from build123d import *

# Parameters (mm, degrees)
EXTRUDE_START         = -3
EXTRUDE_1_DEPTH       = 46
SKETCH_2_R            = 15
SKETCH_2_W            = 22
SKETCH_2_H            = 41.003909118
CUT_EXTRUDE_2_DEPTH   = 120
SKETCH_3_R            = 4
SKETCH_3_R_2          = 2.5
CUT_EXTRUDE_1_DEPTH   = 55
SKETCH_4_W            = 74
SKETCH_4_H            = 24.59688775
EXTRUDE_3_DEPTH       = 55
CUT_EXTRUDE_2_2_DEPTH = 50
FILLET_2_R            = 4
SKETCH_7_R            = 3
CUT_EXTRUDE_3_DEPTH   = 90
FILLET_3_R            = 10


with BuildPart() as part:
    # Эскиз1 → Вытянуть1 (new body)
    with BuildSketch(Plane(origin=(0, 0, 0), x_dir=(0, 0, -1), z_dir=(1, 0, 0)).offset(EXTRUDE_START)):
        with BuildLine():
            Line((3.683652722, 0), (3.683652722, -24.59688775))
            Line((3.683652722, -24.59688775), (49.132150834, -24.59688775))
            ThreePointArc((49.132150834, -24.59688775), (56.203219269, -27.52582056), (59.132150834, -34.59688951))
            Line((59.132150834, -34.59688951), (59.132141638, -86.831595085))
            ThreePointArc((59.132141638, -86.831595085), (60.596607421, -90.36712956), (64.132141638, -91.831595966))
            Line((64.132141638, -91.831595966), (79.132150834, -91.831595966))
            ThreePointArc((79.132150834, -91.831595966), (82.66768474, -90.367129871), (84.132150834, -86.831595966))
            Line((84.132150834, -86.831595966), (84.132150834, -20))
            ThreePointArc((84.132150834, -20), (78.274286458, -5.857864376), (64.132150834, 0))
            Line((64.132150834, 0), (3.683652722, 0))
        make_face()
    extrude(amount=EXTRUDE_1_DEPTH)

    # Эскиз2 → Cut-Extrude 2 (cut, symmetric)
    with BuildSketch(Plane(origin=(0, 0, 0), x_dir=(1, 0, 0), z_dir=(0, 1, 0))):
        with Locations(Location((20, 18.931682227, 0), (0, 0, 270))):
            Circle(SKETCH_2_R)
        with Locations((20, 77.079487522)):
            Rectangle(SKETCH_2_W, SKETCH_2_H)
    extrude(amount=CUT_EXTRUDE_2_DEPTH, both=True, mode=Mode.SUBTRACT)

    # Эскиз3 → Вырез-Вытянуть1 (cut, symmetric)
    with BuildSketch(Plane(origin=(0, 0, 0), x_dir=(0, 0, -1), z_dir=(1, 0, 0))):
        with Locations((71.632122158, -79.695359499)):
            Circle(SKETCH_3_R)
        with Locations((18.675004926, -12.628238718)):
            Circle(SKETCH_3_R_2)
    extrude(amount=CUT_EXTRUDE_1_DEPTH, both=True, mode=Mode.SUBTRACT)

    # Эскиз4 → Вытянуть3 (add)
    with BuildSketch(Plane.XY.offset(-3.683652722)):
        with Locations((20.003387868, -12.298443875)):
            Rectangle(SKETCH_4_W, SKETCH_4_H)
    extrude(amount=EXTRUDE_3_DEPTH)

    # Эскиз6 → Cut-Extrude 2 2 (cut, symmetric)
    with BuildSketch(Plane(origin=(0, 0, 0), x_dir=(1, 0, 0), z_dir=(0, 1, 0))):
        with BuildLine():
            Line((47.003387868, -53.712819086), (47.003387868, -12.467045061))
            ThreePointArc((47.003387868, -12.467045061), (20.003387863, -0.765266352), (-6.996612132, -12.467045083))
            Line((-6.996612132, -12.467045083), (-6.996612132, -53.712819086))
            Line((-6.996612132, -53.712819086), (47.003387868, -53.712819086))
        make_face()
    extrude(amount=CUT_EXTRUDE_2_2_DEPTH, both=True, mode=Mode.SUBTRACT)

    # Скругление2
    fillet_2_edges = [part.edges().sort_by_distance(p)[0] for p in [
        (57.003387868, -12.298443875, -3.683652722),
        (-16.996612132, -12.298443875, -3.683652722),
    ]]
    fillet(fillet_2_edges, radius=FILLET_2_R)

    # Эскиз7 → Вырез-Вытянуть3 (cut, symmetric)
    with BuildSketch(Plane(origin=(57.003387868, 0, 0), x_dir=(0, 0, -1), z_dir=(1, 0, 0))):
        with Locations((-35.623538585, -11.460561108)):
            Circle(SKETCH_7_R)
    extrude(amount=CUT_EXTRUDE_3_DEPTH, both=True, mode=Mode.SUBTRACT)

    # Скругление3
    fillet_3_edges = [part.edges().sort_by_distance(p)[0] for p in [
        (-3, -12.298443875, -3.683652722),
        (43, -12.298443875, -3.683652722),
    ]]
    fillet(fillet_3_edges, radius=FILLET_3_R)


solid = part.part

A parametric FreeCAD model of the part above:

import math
import FreeCAD as App
import Part
import Sketcher

V = App.Vector


def edges_at(feature, points):
    """Names of the edges that pass closest to the given points."""
    edges = feature.Shape.Edges
    near = lambda p: min(range(len(edges)), key=lambda i: edges[i].distToShape(Part.Vertex(*p))[0])
    return sorted({f"Edge{near(p) + 1}" for p in points})


def add_polygon(sketch, points):
    """Adds a closed chain of lines whose ends are joined by coincident constraints."""
    first, n = sketch.GeometryCount, len(points)
    for a, b in zip(points, points[1:] + points[:1]):
        sketch.addGeometry(Part.LineSegment(App.Vector(*a, 0), App.Vector(*b, 0)), False)
    for i in range(n):
        sketch.addConstraint(Sketcher.Constraint("Coincident", first + i, 2, first + (i + 1) % n, 1))

doc = App.newDocument("Part")
body = doc.addObject("PartDesign::Body", "Body")

# Sketch on YZ plane
sketch1 = body.newObject("Sketcher::SketchObject", "Sketch")
sketch1.AttachmentSupport = (doc.getObject("YZ_Plane"), [""])
sketch1.MapMode = "FlatFace"
sketch1.AttachmentOffset = App.Placement(V(0, 0, -3), App.Rotation())
sketch1.addGeometry(Part.LineSegment(V(0, -3.683653, 0), V(-24.596888, -3.683653, 0)), False)
sketch1.addGeometry(Part.LineSegment(V(-24.596888, -3.683653, 0), V(-24.596888, -49.132151, 0)), False)
sketch1.addGeometry(Part.ArcOfCircle(Part.Circle(V(-34.596888, -49.132151, 0), V(0, 0, 1), 10), math.radians(-90.00001), math.radians(0)), False)
sketch1.addGeometry(Part.LineSegment(V(-34.59689, -59.132151, 0), V(-86.831595, -59.132142, 0)), False)
sketch1.addGeometry(Part.ArcOfCircle(Part.Circle(V(-86.831596, -64.132142, 0), V(0, 0, 1), 5), math.radians(89.99999), math.radians(180)), False)
sketch1.addGeometry(Part.LineSegment(V(-91.831596, -64.132142, 0), V(-91.831596, -79.132151, 0)), False)
sketch1.addGeometry(Part.ArcOfCircle(Part.Circle(V(-86.831596, -79.132151, 0), V(0, 0, 1), 5), math.radians(-180), math.radians(-90)), False)
sketch1.addGeometry(Part.LineSegment(V(-86.831596, -84.132151, 0), V(-20, -84.132151, 0)), False)
sketch1.addGeometry(Part.ArcOfCircle(Part.Circle(V(-20, -64.132151, 0), V(0, 0, 1), 20), math.radians(-90), math.radians(0)), False)
sketch1.addGeometry(Part.LineSegment(V(0, -64.132151, 0), V(0, -3.683653, 0)), False)
sketch1.addConstraint(Sketcher.Constraint("Coincident", 0, 2, 1, 1))
sketch1.addConstraint(Sketcher.Constraint("Tangent", 1, 2, 2, 2))
sketch1.addConstraint(Sketcher.Constraint("Tangent", 2, 1, 3, 1))
sketch1.addConstraint(Sketcher.Constraint("Tangent", 3, 2, 4, 1))
sketch1.addConstraint(Sketcher.Constraint("Tangent", 4, 2, 5, 1))
sketch1.addConstraint(Sketcher.Constraint("Tangent", 5, 2, 6, 1))
sketch1.addConstraint(Sketcher.Constraint("Tangent", 6, 2, 7, 1))
sketch1.addConstraint(Sketcher.Constraint("Tangent", 7, 2, 8, 1))
sketch1.addConstraint(Sketcher.Constraint("Tangent", 8, 2, 9, 1))
sketch1.addConstraint(Sketcher.Constraint("Coincident", 9, 2, 0, 1))
sketch1.addConstraint(Sketcher.Constraint("Horizontal", 0))
sketch1.addConstraint(Sketcher.Constraint("Vertical", 1))
sketch1.addConstraint(Sketcher.Constraint("Vertical", 5))
sketch1.addConstraint(Sketcher.Constraint("Horizontal", 7))
sketch1.addConstraint(Sketcher.Constraint("Vertical", 9))
sketch1.addConstraint(Sketcher.Constraint("Equal", 4, 6))
sketch1.addConstraint(Sketcher.Constraint("PointOnObject", 8, 2, -2))
sketch1.addConstraint(Sketcher.Constraint("Vertical", 6, 3, 3, 2))
sketch1.addConstraint(Sketcher.Constraint("Radius", 2, 10.0))
sketch1.addConstraint(Sketcher.Constraint("Radius", 4, 5.0))
sketch1.addConstraint(Sketcher.Constraint("Radius", 8, 20.0))
sketch1.addConstraint(Sketcher.Constraint("DistanceY", 6, 3, 2, 3, 30.0))
sketch1.addConstraint(Sketcher.Constraint("DistanceY", 1, 2, 1, 1, 45.448498))
sketch1.addConstraint(Sketcher.Constraint("DistanceX", 0, 2, 0, 1, 24.596888))
sketch1.addConstraint(Sketcher.Constraint("DistanceX", 7, 1, 7, 2, 66.831596))
sketch1.addConstraint(Sketcher.Constraint("DistanceY", 2, 3, -1, 1, 49.132151))
pad1 = body.newObject("PartDesign::Pad", "Pad")
pad1.Profile = sketch1
pad1.Length = 46

# Sketch on XZ plane
sketch2 = body.newObject("Sketcher::SketchObject", "Sketch001")
sketch2.AttachmentSupport = (doc.getObject("XZ_Plane"), [""])
sketch2.MapMode = "FlatFace"
sketch2.addGeometry(Part.Circle(V(20, -18.931682, 0), V(0, 0, 1), 15), False)  # 0
add_polygon(sketch2, [(9, -97.581442), (9, -56.577533), (31, -56.577533), (31, -97.581442)])  # lines 1-4
sketch2.addConstraint(Sketcher.Constraint("Vertical", 1))
sketch2.addConstraint(Sketcher.Constraint("Horizontal", 2))
sketch2.addConstraint(Sketcher.Constraint("Vertical", 3))
sketch2.addConstraint(Sketcher.Constraint("Horizontal", 4))
sketch2.addConstraint(Sketcher.Constraint("Diameter", 0, 30.0))
sketch2.addConstraint(Sketcher.Constraint("DistanceX", 2, 1, 2, 2, 22.0))
sketch2.addConstraint(Sketcher.Constraint("DistanceX", -1, 1, 0, 3, 20.0))
sketch2.addConstraint(Sketcher.Constraint("DistanceX", -1, 1, 1, 2, 9.0))
sketch2.addConstraint(Sketcher.Constraint("DistanceY", 1, 1, 1, 2, 41.003909))
sketch2.addConstraint(Sketcher.Constraint("DistanceY", 1, 2, 0, 3, 37.645851))
sketch2.addConstraint(Sketcher.Constraint("DistanceY", 0, 3, -1, 1, 18.931682))
pocket1 = body.newObject("PartDesign::Pocket", "Pocket")
pocket1.Profile = sketch2
pocket1.Length = 240
pocket1.Midplane = True

# Sketch on YZ plane
sketch3 = body.newObject("Sketcher::SketchObject", "Sketch002")
sketch3.AttachmentSupport = (doc.getObject("YZ_Plane"), [""])
sketch3.MapMode = "FlatFace"
sketch3.addGeometry(Part.Circle(V(-79.695359, -71.632122, 0), V(0, 0, 1), 4), False)
sketch3.addGeometry(Part.Circle(V(-12.628239, -18.675005, 0), V(0, 0, 1), 2.5), False)
sketch3.addConstraint(Sketcher.Constraint("Diameter", 0, 8.0))
sketch3.addConstraint(Sketcher.Constraint("Diameter", 1, 5.0))
sketch3.addConstraint(Sketcher.Constraint("DistanceX", 0, 3, -1, 1, 79.695359))
sketch3.addConstraint(Sketcher.Constraint("DistanceX", 1, 3, -1, 1, 12.628239))
sketch3.addConstraint(Sketcher.Constraint("DistanceY", 0, 3, -1, 1, 71.632122))
sketch3.addConstraint(Sketcher.Constraint("DistanceY", 1, 3, -1, 1, 18.675005))
pocket2 = body.newObject("PartDesign::Pocket", "Pocket001")
pocket2.Profile = sketch3
pocket2.Length = 110
pocket2.Midplane = True

# Sketch on XY plane
sketch4 = body.newObject("Sketcher::SketchObject", "Sketch003")
sketch4.AttachmentSupport = (doc.getObject("XY_Plane"), [""])
sketch4.MapMode = "FlatFace"
sketch4.AttachmentOffset = App.Placement(V(0, 0, -3.683653), App.Rotation())
add_polygon(sketch4, [(-16.996612, 0), (-16.996612, -24.596888), (57.003388, -24.596888), (57.003388, 0)])  # lines 0-3
sketch4.addConstraint(Sketcher.Constraint("Vertical", 0))
sketch4.addConstraint(Sketcher.Constraint("Horizontal", 1))
sketch4.addConstraint(Sketcher.Constraint("Vertical", 2))
sketch4.addConstraint(Sketcher.Constraint("Horizontal", 3))
sketch4.addConstraint(Sketcher.Constraint("PointOnObject", 2, 2, -1))
sketch4.addConstraint(Sketcher.Constraint("DistanceX", 1, 1, 1, 2, 74.0))
sketch4.addConstraint(Sketcher.Constraint("DistanceY", 0, 2, 0, 1, 24.596888))
sketch4.addConstraint(Sketcher.Constraint("DistanceX", 0, 2, -1, 1, 16.996612))
pad2 = body.newObject("PartDesign::Pad", "Pad001")
pad2.Profile = sketch4
pad2.Length = 55

# Sketch on XZ plane
sketch5 = body.newObject("Sketcher::SketchObject", "Sketch004")
sketch5.AttachmentSupport = (doc.getObject("XZ_Plane"), [""])
sketch5.MapMode = "FlatFace"
sketch5.addGeometry(Part.LineSegment(V(47.003388, 53.712819, 0), V(47.003388, 12.467045, 0)), False)
sketch5.addGeometry(Part.ArcOfCircle(Part.Circle(V(20.003388, 37.765266, 0), V(0, 0, 1), 37), math.radians(-136.863741), math.radians(-43.136259)), False)
sketch5.addGeometry(Part.LineSegment(V(-6.996612, 12.467045, 0), V(-6.996612, 53.712819, 0)), False)
sketch5.addGeometry(Part.LineSegment(V(-6.996612, 53.712819, 0), V(47.003388, 53.712819, 0)), False)
sketch5.addConstraint(Sketcher.Constraint("Coincident", 0, 2, 1, 2))
sketch5.addConstraint(Sketcher.Constraint("Coincident", 1, 1, 2, 1))
sketch5.addConstraint(Sketcher.Constraint("Coincident", 2, 2, 3, 1))
sketch5.addConstraint(Sketcher.Constraint("Coincident", 3, 2, 0, 1))
sketch5.addConstraint(Sketcher.Constraint("Vertical", 0))
sketch5.addConstraint(Sketcher.Constraint("Vertical", 2))
sketch5.addConstraint(Sketcher.Constraint("Horizontal", 3))
sketch5.addConstraint(Sketcher.Constraint("Horizontal", 0, 2, 1, 1))
sketch5.addConstraint(Sketcher.Constraint("Radius", 1, 37.0))
sketch5.addConstraint(Sketcher.Constraint("DistanceX", 3, 1, 3, 2, 54.0))
sketch5.addConstraint(Sketcher.Constraint("DistanceY", 0, 2, 0, 1, 41.245774))
sketch5.addConstraint(Sketcher.Constraint("DistanceY", -1, 1, 2, 2, 53.712819))
sketch5.addConstraint(Sketcher.Constraint("DistanceX", -1, 1, 1, 3, 20.003388))
pocket3 = body.newObject("PartDesign::Pocket", "Pocket002")
pocket3.Profile = sketch5
pocket3.Length = 100
pocket3.Midplane = True
doc.recompute()

fillet = body.newObject("PartDesign::Fillet", "Fillet")
fillet.Base = (pocket3, edges_at(pocket3, [(57.003, -12.298, -3.684), (-16.997, -12.298, -3.684)]))
fillet.Radius = 4

# Sketch on YZ plane
sketch6 = body.newObject("Sketcher::SketchObject", "Sketch005")
sketch6.AttachmentSupport = (doc.getObject("YZ_Plane"), [""])
sketch6.MapMode = "FlatFace"
sketch6.AttachmentOffset = App.Placement(V(0, 0, 57.003388), App.Rotation())
sketch6.addGeometry(Part.Circle(V(-11.460561, 35.623539, 0), V(0, 0, 1), 3), False)
sketch6.addConstraint(Sketcher.Constraint("Diameter", 0, 6.0))
sketch6.addConstraint(Sketcher.Constraint("DistanceX", 0, 3, -1, 1, 11.460561))
sketch6.addConstraint(Sketcher.Constraint("DistanceY", -1, 1, 0, 3, 35.623539))
pocket4 = body.newObject("PartDesign::Pocket", "Pocket003")
pocket4.Profile = sketch6
pocket4.Length = 180
pocket4.Midplane = True
doc.recompute()

fillet2 = body.newObject("PartDesign::Fillet", "Fillet001")
fillet2.Base = (pocket4, edges_at(pocket4, [(-3, -12.298, -3.684), (43, -12.298, -3.684)]))
fillet2.Radius = 10

doc.recompute()
